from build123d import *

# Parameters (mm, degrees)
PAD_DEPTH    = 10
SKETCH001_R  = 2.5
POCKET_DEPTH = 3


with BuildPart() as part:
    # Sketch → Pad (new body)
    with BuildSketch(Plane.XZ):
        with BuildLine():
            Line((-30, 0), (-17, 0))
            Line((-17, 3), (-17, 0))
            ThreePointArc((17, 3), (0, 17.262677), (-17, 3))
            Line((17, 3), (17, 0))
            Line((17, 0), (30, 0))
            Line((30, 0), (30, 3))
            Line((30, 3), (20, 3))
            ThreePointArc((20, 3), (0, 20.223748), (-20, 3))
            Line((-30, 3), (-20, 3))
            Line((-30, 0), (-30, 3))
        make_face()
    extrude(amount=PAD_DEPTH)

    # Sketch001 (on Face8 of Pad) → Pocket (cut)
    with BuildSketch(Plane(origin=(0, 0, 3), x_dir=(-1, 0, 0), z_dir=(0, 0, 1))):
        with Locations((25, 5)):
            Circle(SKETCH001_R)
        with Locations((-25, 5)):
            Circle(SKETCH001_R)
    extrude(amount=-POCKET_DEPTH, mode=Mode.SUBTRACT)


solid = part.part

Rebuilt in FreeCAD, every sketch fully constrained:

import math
import FreeCAD as App
import Part
import Sketcher
from FreeCAD import Vector
Q = App.Units.Quantity

doc = App.newDocument("Part")
body = doc.addObject("PartDesign::Body", "Body")

# Sketch on XZ plane
sketch1 = body.newObject("Sketcher::SketchObject", "Sketch")
sketch1.AttachmentSupport = (doc.getObject("XZ_Plane"), [""])
sketch1.MapMode = "FlatFace"
sketch1.addGeometry([
    Part.LineSegment(Vector(-30, 0, 0), Vector(-17, 0, 0)),  # 0
    Part.LineSegment(Vector(-17, 0, 0), Vector(-17, 3, 0)),  # 1
    Part.ArcOfCircle(Part.Circle(Vector(0, 0.000001, 0), Vector(0, 0, 1), 17.262676), math.radians(10.007978), math.radians(169.992022)),  # 2
    Part.LineSegment(Vector(17, 3, 0), Vector(17, 0, 0)),  # 3
    Part.LineSegment(Vector(17, 0, 0), Vector(30, 0, 0)),  # 4
    Part.LineSegment(Vector(30, 0, 0), Vector(30, 3, 0)),  # 5
    Part.LineSegment(Vector(30, 3, 0), Vector(20, 3, 0)),  # 6
    Part.ArcOfCircle(Part.Circle(Vector(0, 0, 0), Vector(0, 0, 1), 20.223748), math.radians(8.530767), math.radians(171.469233)),  # 7
    Part.LineSegment(Vector(-20, 3, 0), Vector(-30, 3, 0)),  # 8
    Part.LineSegment(Vector(-30, 3, 0), Vector(-30, 0, 0)),  # 9
], False)
sketch1.addConstraint([
    Sketcher.Constraint("Coincident", 0, 2, 1, 1),
    Sketcher.Constraint("Coincident", 1, 2, 2, 2),
    Sketcher.Constraint("Coincident", 2, 1, 3, 1),
    Sketcher.Constraint("Coincident", 3, 2, 4, 1),
    Sketcher.Constraint("Coincident", 4, 2, 5, 1),
    Sketcher.Constraint("Coincident", 5, 2, 6, 1),
    Sketcher.Constraint("Coincident", 6, 2, 7, 1),
    Sketcher.Constraint("Coincident", 7, 2, 8, 1),
    Sketcher.Constraint("Coincident", 8, 2, 9, 1),
    Sketcher.Constraint("Coincident", 9, 2, 0, 1),
    Sketcher.Constraint("Horizontal", 0),
    Sketcher.Constraint("Vertical", 1),
    Sketcher.Constraint("Vertical", 3),
    Sketcher.Constraint("Horizontal", 4),
    Sketcher.Constraint("Vertical", 5),
    Sketcher.Constraint("Horizontal", 6),
    Sketcher.Constraint("Horizontal", 8),
    Sketcher.Constraint("Vertical", 9),
    Sketcher.Constraint("Coincident", 2, 3, -1, 1),
    Sketcher.Constraint("Coincident", 7, 3, -1, 1),
    Sketcher.Constraint("Symmetric", 0, 2, 3, 2, -1, 1),
    Sketcher.Constraint("Symmetric", 5, 2, 8, 2, -2),
    Sketcher.Constraint("PointOnObject", 0, 2, -1),
    Sketcher.Constraint("Horizontal", 2, 1, 5, 2),
    Sketcher.Constraint("DistanceX", 0, 1, 0, 2, Q("13 mm")),
    Sketcher.Constraint("DistanceX", 6, 2, 6, 1, Q("10 mm")),
    Sketcher.Constraint("DistanceY", 1, 1, 1, 2, Q("3 mm")),
    Sketcher.Constraint("DistanceX", 0, 2, -1, 1, Q("17 mm")),
])
pad1 = body.newObject("PartDesign::Pad", "Pad")
pad1.Profile = sketch1
pad1.Length = 10

# Sketch on XY plane
sketch2 = body.newObject("Sketcher::SketchObject", "Sketch001")
sketch2.AttachmentSupport = (doc.getObject("XY_Plane"), [""])
sketch2.MapMode = "FlatFace"
sketch2.AttachmentOffset = App.Placement(Vector(0, 0, 3), App.Rotation())
sketch2.addGeometry([
    Part.Circle(Vector(-25, -5, 0), Vector(0, 0, 1), 2.5),
    Part.Circle(Vector(25, -5, 0), Vector(0, 0, 1), 2.5),
], False)
sketch2.addConstraint([
    Sketcher.Constraint("Equal", 0, 1),
    Sketcher.Constraint("Symmetric", 0, 3, 1, 3, -2),
    Sketcher.Constraint("Diameter", 0, Q("5 mm")),
    Sketcher.Constraint("DistanceX", 0, 3, -1, 1, Q("25 mm")),
    Sketcher.Constraint("DistanceY", 0, 3, -1, 1, Q("5 mm")),
])
pocket1 = body.newObject("PartDesign::Pocket", "Pocket")
pocket1.Profile = sketch2
pocket1.Length = 3

doc.recompute()
